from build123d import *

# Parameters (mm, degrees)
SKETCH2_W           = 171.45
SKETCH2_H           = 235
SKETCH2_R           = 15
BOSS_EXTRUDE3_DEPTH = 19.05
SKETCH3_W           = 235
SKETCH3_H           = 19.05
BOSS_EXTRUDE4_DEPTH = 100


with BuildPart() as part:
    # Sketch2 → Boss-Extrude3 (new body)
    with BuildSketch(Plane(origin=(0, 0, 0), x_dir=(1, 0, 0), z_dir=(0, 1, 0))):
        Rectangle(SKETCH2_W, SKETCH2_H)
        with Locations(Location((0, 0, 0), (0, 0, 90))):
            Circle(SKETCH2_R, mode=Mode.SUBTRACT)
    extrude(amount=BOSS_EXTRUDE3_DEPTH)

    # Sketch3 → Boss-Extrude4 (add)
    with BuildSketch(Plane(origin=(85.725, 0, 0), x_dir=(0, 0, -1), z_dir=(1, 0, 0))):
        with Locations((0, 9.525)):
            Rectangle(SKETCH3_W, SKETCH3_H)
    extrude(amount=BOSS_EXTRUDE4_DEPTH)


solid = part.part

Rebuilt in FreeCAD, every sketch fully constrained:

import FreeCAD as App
import Part
import Sketcher


def add_polygon(sketch, points):
    """Adds a closed chain of lines whose ends are joined by coincident constraints."""
    first, n = sketch.GeometryCount, len(points)
    for a, b in zip(points, points[1:] + points[:1]):
        sketch.addGeometry(Part.LineSegment(App.Vector(*a, 0), App.Vector(*b, 0)), False)
    for i in range(n):
        sketch.addConstraint(Sketcher.Constraint("Coincident", first + i, 2, first + (i + 1) % n, 1))

doc = App.newDocument("Part")
body = doc.addObject("PartDesign::Body", "Body")

# Sketch on XZ plane
sketch1 = body.newObject("Sketcher::SketchObject", "Sketch")
sketch1.AttachmentSupport = (doc.getObject("XZ_Plane"), [""])
sketch1.MapMode = "FlatFace"
add_polygon(sketch1, [(-85.725, -117.5), (-85.725, 117.5), (85.725, 117.5), (85.725, -117.5)])  # lines 0-3
sketch1.addGeometry(Part.Circle(App.Vector(0, 0, 0), App.Vector(0, 0, 1), 15), False)  # 4
sketch1.addConstraint([
    Sketcher.Constraint("Vertical", 0),
    Sketcher.Constraint("Horizontal", 1),
    Sketcher.Constraint("Vertical", 2),
    Sketcher.Constraint("Horizontal", 3),
    Sketcher.Constraint("Coincident", 4, 3, -1, 1),
    Sketcher.Constraint("Symmetric", 0, 2, 2, 2, -1, 1),
    Sketcher.Constraint("Diameter", 4, 30.0),
    Sketcher.Constraint("DistanceY", 0, 1, 0, 2, 235.0),
    Sketcher.Constraint("DistanceX", 1, 1, 1, 2, 171.45),
])
pad1 = body.newObject("PartDesign::Pad", "Pad")
pad1.Profile = sketch1
pad1.Length = 19.05
pad1.Reversed = True

# Sketch on YZ plane
sketch2 = body.newObject("Sketcher::SketchObject", "Sketch001")
sketch2.AttachmentSupport = (doc.getObject("YZ_Plane"), [""])
sketch2.MapMode = "FlatFace"
sketch2.AttachmentOffset = App.Placement(App.Vector(0, 0, 85.725), App.Rotation())
add_polygon(sketch2, [(19.05, 117.5), (0, 117.5), (0, -117.5), (19.05, -117.5)])  # lines 0-3
sketch2.addConstraint([
    Sketcher.Constraint("Horizontal", 0),
    Sketcher.Constraint("Vertical", 1),
    Sketcher.Constraint("Horizontal", 2),
    Sketcher.Constraint("Vertical", 3),
    Sketcher.Constraint("Symmetric", 0, 2, 1, 2, -1, 1),
    Sketcher.Constraint("DistanceY", 1, 2, 1, 1, 235.0),
    Sketcher.Constraint("DistanceX", 0, 2, 0, 1, 19.05),
])
pad2 = body.newObject("PartDesign::Pad", "Pad001")
pad2.Profile = sketch2
pad2.Length = 100

doc.recompute()
